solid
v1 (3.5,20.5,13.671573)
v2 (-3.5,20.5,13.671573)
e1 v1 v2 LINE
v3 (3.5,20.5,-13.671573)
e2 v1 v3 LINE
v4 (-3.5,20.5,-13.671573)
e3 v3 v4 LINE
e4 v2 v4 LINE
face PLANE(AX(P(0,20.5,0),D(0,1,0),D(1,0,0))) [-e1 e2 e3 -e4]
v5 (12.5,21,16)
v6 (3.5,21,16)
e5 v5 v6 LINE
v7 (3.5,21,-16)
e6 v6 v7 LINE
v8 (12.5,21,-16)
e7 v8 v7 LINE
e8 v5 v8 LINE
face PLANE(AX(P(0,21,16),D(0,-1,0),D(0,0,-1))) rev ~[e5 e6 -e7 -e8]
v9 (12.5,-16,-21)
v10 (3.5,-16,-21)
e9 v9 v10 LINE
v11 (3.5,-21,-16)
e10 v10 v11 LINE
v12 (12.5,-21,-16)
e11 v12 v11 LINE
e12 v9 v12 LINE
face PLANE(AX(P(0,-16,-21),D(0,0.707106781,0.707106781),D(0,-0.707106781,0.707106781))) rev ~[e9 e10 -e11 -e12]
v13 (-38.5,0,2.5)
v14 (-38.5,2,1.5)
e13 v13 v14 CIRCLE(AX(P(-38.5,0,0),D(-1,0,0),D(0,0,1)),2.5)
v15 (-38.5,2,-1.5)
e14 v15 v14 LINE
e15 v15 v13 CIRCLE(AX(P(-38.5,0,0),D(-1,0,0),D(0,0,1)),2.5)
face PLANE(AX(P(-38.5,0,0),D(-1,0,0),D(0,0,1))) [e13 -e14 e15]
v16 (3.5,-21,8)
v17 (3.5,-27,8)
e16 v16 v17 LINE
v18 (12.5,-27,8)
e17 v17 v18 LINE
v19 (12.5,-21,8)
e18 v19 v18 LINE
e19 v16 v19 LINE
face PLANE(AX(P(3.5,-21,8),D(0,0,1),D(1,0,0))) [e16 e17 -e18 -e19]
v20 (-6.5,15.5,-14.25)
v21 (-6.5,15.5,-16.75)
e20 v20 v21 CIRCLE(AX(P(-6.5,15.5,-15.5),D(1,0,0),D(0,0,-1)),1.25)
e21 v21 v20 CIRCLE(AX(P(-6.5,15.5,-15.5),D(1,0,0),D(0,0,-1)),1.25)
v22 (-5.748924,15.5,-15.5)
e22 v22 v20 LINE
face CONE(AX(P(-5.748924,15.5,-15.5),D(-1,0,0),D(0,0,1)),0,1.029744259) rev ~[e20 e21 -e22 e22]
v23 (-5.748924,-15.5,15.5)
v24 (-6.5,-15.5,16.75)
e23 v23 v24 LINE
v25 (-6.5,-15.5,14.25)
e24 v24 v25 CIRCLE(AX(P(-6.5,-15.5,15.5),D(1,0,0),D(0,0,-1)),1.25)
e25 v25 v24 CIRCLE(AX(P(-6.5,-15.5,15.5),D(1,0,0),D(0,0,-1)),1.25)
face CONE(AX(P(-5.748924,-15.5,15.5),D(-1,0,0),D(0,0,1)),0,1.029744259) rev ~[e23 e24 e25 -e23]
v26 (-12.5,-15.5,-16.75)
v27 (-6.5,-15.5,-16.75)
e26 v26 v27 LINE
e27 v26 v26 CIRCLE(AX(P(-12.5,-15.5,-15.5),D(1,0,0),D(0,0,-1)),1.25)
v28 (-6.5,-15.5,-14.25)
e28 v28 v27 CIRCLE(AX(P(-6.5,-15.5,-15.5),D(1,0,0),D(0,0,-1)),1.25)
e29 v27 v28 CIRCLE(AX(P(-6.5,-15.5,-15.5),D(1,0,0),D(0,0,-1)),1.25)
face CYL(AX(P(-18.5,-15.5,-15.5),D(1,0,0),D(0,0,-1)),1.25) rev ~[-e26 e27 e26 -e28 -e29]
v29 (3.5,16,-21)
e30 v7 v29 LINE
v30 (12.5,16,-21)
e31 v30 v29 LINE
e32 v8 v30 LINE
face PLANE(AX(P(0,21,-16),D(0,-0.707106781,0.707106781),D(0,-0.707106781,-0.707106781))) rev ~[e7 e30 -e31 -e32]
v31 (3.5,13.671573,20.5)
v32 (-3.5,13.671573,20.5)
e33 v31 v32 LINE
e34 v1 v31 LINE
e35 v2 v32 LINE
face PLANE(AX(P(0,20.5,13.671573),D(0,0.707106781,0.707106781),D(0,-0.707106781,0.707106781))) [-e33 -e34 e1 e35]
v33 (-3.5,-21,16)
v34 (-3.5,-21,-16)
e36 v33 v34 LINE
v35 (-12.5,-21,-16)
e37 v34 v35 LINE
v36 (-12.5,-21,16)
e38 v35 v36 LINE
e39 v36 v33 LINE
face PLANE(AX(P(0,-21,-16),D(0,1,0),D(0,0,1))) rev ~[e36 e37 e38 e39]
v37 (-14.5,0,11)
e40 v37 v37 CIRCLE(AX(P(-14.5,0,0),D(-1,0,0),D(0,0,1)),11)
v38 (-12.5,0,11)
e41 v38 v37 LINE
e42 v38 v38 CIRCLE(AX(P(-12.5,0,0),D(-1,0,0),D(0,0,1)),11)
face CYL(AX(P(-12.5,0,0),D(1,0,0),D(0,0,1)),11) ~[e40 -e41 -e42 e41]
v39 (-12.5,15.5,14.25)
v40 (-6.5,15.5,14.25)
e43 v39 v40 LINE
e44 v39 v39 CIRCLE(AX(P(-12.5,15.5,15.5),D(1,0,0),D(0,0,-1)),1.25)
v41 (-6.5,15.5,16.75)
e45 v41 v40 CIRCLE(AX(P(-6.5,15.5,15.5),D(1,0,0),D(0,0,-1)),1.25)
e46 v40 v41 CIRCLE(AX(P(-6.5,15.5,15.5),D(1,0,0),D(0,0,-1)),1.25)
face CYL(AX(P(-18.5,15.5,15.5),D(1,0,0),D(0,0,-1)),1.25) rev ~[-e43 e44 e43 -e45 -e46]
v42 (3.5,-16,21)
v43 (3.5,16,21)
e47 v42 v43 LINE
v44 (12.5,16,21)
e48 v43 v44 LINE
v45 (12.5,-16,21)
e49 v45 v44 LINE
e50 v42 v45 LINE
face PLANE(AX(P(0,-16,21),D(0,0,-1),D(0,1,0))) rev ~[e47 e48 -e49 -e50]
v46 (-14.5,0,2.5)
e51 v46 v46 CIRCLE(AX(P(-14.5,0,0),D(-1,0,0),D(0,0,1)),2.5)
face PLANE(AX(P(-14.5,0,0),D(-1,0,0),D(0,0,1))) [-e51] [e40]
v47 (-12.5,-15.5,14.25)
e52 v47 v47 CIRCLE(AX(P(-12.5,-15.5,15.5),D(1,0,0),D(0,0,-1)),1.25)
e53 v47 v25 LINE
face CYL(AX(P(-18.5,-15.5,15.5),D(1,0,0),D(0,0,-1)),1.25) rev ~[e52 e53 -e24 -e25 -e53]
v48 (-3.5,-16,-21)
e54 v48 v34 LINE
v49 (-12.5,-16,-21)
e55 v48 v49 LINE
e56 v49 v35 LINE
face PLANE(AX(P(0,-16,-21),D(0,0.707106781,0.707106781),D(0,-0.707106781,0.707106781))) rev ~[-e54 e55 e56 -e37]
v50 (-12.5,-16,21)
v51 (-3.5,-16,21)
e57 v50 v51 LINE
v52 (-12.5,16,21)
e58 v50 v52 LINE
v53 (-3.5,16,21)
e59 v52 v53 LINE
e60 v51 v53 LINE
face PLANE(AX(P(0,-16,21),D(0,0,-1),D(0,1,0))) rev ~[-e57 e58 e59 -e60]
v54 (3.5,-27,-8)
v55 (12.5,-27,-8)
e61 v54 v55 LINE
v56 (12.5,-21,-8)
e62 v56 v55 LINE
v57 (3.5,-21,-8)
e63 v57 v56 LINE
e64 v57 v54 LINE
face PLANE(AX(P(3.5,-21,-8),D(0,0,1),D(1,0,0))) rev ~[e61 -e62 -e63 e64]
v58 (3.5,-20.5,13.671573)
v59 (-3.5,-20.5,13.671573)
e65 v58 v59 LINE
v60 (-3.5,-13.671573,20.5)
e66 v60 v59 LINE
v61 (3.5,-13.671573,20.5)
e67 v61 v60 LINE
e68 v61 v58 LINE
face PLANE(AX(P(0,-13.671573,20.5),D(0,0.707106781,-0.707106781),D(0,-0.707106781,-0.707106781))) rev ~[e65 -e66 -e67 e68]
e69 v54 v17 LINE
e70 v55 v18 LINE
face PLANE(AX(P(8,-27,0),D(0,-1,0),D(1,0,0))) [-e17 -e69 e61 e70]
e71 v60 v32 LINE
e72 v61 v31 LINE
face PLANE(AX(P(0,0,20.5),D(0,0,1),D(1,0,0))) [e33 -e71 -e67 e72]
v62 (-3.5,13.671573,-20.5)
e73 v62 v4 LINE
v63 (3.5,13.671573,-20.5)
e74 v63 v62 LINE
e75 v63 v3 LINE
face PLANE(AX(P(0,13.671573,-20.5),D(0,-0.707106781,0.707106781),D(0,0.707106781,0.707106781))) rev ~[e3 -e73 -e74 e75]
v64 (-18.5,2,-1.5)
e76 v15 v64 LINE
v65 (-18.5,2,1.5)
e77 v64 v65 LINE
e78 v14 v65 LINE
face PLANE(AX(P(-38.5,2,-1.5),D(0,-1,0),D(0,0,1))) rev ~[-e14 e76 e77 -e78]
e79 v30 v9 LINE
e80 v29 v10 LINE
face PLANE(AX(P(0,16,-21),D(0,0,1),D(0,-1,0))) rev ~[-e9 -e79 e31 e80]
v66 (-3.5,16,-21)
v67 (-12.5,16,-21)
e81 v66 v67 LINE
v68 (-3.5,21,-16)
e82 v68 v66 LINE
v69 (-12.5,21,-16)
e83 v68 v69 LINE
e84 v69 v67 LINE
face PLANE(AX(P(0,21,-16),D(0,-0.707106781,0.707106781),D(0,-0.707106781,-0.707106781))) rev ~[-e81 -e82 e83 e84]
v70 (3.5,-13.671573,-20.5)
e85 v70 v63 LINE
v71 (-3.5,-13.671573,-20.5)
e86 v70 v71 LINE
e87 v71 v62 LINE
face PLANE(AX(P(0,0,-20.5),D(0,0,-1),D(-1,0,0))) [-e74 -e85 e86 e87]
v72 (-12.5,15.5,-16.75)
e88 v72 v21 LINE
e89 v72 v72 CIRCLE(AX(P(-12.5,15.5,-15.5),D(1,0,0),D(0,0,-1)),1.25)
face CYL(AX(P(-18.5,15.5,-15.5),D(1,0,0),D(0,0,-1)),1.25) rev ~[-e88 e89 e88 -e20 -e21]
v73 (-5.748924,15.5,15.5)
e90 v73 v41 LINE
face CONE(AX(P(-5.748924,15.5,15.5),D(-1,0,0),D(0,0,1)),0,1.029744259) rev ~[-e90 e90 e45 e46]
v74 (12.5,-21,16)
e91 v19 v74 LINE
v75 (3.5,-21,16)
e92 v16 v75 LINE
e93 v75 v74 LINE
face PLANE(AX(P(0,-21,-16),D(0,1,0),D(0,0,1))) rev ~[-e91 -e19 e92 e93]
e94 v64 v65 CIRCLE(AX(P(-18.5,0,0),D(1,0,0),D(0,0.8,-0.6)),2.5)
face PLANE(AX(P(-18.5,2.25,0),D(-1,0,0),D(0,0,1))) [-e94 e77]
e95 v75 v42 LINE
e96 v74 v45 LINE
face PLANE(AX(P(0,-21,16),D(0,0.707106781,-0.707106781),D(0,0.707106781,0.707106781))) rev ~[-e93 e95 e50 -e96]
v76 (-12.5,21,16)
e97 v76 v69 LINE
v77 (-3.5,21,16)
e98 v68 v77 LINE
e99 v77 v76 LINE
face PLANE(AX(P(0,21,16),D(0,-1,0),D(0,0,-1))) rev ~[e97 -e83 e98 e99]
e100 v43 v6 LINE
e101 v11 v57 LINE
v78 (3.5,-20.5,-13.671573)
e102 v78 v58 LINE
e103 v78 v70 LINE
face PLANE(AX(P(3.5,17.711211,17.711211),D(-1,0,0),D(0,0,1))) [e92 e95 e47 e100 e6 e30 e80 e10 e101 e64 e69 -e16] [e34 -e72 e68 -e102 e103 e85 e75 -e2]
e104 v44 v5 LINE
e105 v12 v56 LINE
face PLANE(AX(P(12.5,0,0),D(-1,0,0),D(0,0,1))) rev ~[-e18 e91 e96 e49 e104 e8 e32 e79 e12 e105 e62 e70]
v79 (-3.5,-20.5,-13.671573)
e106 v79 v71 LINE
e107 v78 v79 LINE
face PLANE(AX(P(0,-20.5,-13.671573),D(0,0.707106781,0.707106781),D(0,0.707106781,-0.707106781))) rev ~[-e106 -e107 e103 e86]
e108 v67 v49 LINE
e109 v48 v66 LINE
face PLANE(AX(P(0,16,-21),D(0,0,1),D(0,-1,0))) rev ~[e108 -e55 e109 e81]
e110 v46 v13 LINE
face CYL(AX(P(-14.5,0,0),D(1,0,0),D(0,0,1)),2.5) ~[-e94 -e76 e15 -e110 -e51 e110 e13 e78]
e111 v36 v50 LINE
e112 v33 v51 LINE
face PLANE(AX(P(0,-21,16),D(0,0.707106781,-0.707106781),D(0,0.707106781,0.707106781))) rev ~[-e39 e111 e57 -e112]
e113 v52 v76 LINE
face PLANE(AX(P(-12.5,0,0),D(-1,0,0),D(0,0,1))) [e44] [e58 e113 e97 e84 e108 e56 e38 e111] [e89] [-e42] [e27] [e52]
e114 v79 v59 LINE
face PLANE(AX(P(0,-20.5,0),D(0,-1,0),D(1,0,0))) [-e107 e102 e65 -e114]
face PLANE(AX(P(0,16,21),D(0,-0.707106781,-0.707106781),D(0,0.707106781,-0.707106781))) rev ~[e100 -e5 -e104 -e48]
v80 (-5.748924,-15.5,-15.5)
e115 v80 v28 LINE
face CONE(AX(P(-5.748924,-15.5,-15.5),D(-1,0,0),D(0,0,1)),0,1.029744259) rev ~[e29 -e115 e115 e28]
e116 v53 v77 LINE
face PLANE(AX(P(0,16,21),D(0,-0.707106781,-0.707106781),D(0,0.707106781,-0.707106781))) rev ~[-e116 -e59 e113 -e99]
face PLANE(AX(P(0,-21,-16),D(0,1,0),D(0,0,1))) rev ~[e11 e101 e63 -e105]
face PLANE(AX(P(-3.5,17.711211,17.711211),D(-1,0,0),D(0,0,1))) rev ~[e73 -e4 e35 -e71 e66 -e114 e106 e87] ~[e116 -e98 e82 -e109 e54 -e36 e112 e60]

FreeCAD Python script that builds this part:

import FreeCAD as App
import Part
import Sketcher
from FreeCAD import Vector

doc = App.newDocument("Part")
params = doc.addObject("Spreadsheet::Sheet", "Params")
for row, (alias, value) in enumerate([
    ("sketch1_width", "32 mm"),
    ("pad1_length", "25 mm"),
    ("sketch2_width", "0.5 mm"),
    ("pocket1_length", "7 mm"),
    ("sketch3_width", "7 mm"),
    ("pocket2_length", "0.5 mm"),
    ("sketch4_width", "7 mm"),
    ("pocket3_length", "0.5 mm"),
    ("sketch5_width", "7 mm"),
    ("pocket4_length", "0.5 mm"),
    ("sketch6_width", "7 mm"),
    ("pocket5_length", "0.5 mm"),
    ("sketch7_diameter", "22 mm"),
    ("pad2_length", "2 mm"),
    ("sketch8_diameter", "5 mm"),
    ("pad3_length", "24 mm"),
    ("sketch9_diameter", "2.5 mm"),
    ("hole_diameter", "2.5 mm"),
    ("hole_depth", "6 mm"),
    ("sketch10_height", "3 mm"),
    ("sketch10_width", "0.5 mm"),
    ("pocket6_length", "20 mm"),
    ("sketch11_width", "9 mm"),
    ("sketch11_height", "16 mm"),
    ("pad4_length", "6 mm"),
], start=1):
    params.set(f"A{row}", alias)
    params.set(f"B{row}", "=" + value)
    params.setAlias(f"B{row}", alias)

body = doc.addObject("PartDesign::Body", "Body")

# Sketch on YZ plane
sketch1 = body.newObject("Sketcher::SketchObject", "Sketch")
sketch1.AttachmentSupport = (doc.getObject("YZ_Plane"), [""])
sketch1.MapMode = "FlatFace"
sketch1.addGeometry(Part.LineSegment(Vector(21, 16, 0), Vector(16, 21, 0)), False)
sketch1.addGeometry(Part.LineSegment(Vector(16, 21, 0), Vector(-16, 21, 0)), False)
sketch1.addGeometry(Part.LineSegment(Vector(-16, 21, 0), Vector(-21, 16, 0)), False)
sketch1.addGeometry(Part.LineSegment(Vector(-21, 16, 0), Vector(-21, -16, 0)), False)
sketch1.addGeometry(Part.LineSegment(Vector(-21, -16, 0), Vector(-16, -21, 0)), False)
sketch1.addGeometry(Part.LineSegment(Vector(-16, -21, 0), Vector(16, -21, 0)), False)
sketch1.addGeometry(Part.LineSegment(Vector(16, -21, 0), Vector(21, -16, 0)), False)
sketch1.addGeometry(Part.LineSegment(Vector(21, -16, 0), Vector(21, 16, 0)), False)
sketch1.addConstraint(Sketcher.Constraint("Coincident", 0, 2, 1, 1))
sketch1.addConstraint(Sketcher.Constraint("Coincident", 1, 2, 2, 1))
sketch1.addConstraint(Sketcher.Constraint("Coincident", 2, 2, 3, 1))
sketch1.addConstraint(Sketcher.Constraint("Coincident", 3, 2, 4, 1))
sketch1.addConstraint(Sketcher.Constraint("Coincident", 4, 2, 5, 1))
sketch1.addConstraint(Sketcher.Constraint("Coincident", 5, 2, 6, 1))
sketch1.addConstraint(Sketcher.Constraint("Coincident", 6, 2, 7, 1))
sketch1.addConstraint(Sketcher.Constraint("Coincident", 7, 2, 0, 1))
sketch1.addConstraint(Sketcher.Constraint("Horizontal", 1))
sketch1.addConstraint(Sketcher.Constraint("Vertical", 3))
sketch1.addConstraint(Sketcher.Constraint("Horizontal", 5))
sketch1.addConstraint(Sketcher.Constraint("Vertical", 7))
sketch1.addConstraint(Sketcher.Constraint("Symmetric", 0, 2, 4, 2, -1, 1))
sketch1.addConstraint(Sketcher.Constraint("Symmetric", 2, 2, 6, 2, -1, 1))
sketch1.addConstraint(Sketcher.Constraint("Perpendicular", 0, 2))
sketch1.addConstraint(Sketcher.Constraint("Perpendicular", 2, 4))
sketch1.addConstraint(Sketcher.Constraint("Perpendicular", 4, 6))
sketch1.addConstraint(Sketcher.Constraint("Horizontal", 3, 2, 6, 2))
sketch1.addConstraint(Sketcher.Constraint("Vertical", 1, 2, 4, 2))
sketch1.addConstraint(Sketcher.Constraint("Equal", 5, 3))
sketch1.addConstraint(Sketcher.Constraint("DistanceX", 1, 2, 1, 1, 32.0))
sketch1.addConstraint(Sketcher.Constraint("DistanceY", -1, 1, 0, 2, 21.0))
sketch1.setExpression("Constraints[20]", "Params.sketch1_width")
pad1 = body.newObject("PartDesign::Pad", "Pad")
pad1.Profile = sketch1
pad1.setExpression("Length", "Params.pad1_length")
pad1.Midplane = True

# Sketch on YZ plane
sketch2 = body.newObject("Sketcher::SketchObject", "Sketch001")
sketch2.AttachmentSupport = (doc.getObject("YZ_Plane"), [""])
sketch2.MapMode = "FlatFace"
sketch2.addGeometry(Part.LineSegment(Vector(-13.7, 20.5, 0), Vector(-13.7, 21, 0)), False)
sketch2.addGeometry(Part.LineSegment(Vector(-13.7, 21, 0), Vector(-16, 21, 0)), False)
sketch2.addGeometry(Part.LineSegment(Vector(-16, 21, 0), Vector(-21, 16, 0)), False)
sketch2.addGeometry(Part.LineSegment(Vector(-21, 16, 0), Vector(-21, 13.7, 0)), False)
sketch2.addGeometry(Part.LineSegment(Vector(-21, 13.7, 0), Vector(-20.5, 13.7, 0)), False)
sketch2.addGeometry(Part.LineSegment(Vector(-20.5, 13.7, 0), Vector(-13.7, 20.5, 0)), False)
sketch2.addGeometry(Part.LineSegment(Vector(-20.5, -13.7, 0), Vector(-21, -13.7, 0)), False)
sketch2.addGeometry(Part.LineSegment(Vector(-21, -13.7, 0), Vector(-21, -16, 0)), False)
sketch2.addGeometry(Part.LineSegment(Vector(-21, -16, 0), Vector(-16, -21, 0)), False)
sketch2.addGeometry(Part.LineSegment(Vector(-16, -21, 0), Vector(-13.7, -21, 0)), False)
sketch2.addGeometry(Part.LineSegment(Vector(-13.7, -21, 0), Vector(-13.7, -20.5, 0)), False)
sketch2.addGeometry(Part.LineSegment(Vector(-13.7, -20.5, 0), Vector(-20.5, -13.7, 0)), False)
sketch2.addGeometry(Part.LineSegment(Vector(13.7, -20.5, 0), Vector(13.7, -21, 0)), False)
sketch2.addGeometry(Part.LineSegment(Vector(13.7, -21, 0), Vector(16, -21, 0)), False)
sketch2.addGeometry(Part.LineSegment(Vector(16, -21, 0), Vector(21, -16, 0)), False)
sketch2.addGeometry(Part.LineSegment(Vector(21, -16, 0), Vector(21, -13.7, 0)), False)
sketch2.addGeometry(Part.LineSegment(Vector(21, -13.7, 0), Vector(20.5, -13.7, 0)), False)
sketch2.addGeometry(Part.LineSegment(Vector(20.5, -13.7, 0), Vector(13.7, -20.5, 0)), False)
sketch2.addGeometry(Part.LineSegment(Vector(20.5, 13.7, 0), Vector(21, 13.7, 0)), False)
sketch2.addGeometry(Part.LineSegment(Vector(21, 13.7, 0), Vector(21, 16, 0)), False)
sketch2.addGeometry(Part.LineSegment(Vector(21, 16, 0), Vector(16, 21, 0)), False)
sketch2.addGeometry(Part.LineSegment(Vector(16, 21, 0), Vector(13.7, 21, 0)), False)
sketch2.addGeometry(Part.LineSegment(Vector(13.7, 21, 0), Vector(13.7, 20.5, 0)), False)
sketch2.addGeometry(Part.LineSegment(Vector(13.7, 20.5, 0), Vector(20.5, 13.7, 0)), False)
sketch2.addConstraint(Sketcher.Constraint("Coincident", 0, 2, 1, 1))
sketch2.addConstraint(Sketcher.Constraint("Coincident", 1, 2, 2, 1))
sketch2.addConstraint(Sketcher.Constraint("Coincident", 2, 2, 3, 1))
sketch2.addConstraint(Sketcher.Constraint("Coincident", 3, 2, 4, 1))
sketch2.addConstraint(Sketcher.Constraint("Coincident", 4, 2, 5, 1))
sketch2.addConstraint(Sketcher.Constraint("Coincident", 5, 2, 0, 1))
sketch2.addConstraint(Sketcher.Constraint("Coincident", 6, 2, 7, 1))
sketch2.addConstraint(Sketcher.Constraint("Coincident", 7, 2, 8, 1))
sketch2.addConstraint(Sketcher.Constraint("Coincident", 8, 2, 9, 1))
sketch2.addConstraint(Sketcher.Constraint("Coincident", 9, 2, 10, 1))
sketch2.addConstraint(Sketcher.Constraint("Coincident", 10, 2, 11, 1))
sketch2.addConstraint(Sketcher.Constraint("Coincident", 11, 2, 6, 1))
sketch2.addConstraint(Sketcher.Constraint("Coincident", 12, 2, 13, 1))
sketch2.addConstraint(Sketcher.Constraint("Coincident", 13, 2, 14, 1))
sketch2.addConstraint(Sketcher.Constraint("Coincident", 14, 2, 15, 1))
sketch2.addConstraint(Sketcher.Constraint("Coincident", 15, 2, 16, 1))
sketch2.addConstraint(Sketcher.Constraint("Coincident", 16, 2, 17, 1))
sketch2.addConstraint(Sketcher.Constraint("Coincident", 17, 2, 12, 1))
sketch2.addConstraint(Sketcher.Constraint("Coincident", 18, 2, 19, 1))
sketch2.addConstraint(Sketcher.Constraint("Coincident", 19, 2, 20, 1))
sketch2.addConstraint(Sketcher.Constraint("Coincident", 20, 2, 21, 1))
sketch2.addConstraint(Sketcher.Constraint("Coincident", 21, 2, 22, 1))
sketch2.addConstraint(Sketcher.Constraint("Coincident", 22, 2, 23, 1))
sketch2.addConstraint(Sketcher.Constraint("Coincident", 23, 2, 18, 1))
sketch2.addConstraint(Sketcher.Constraint("Vertical", 0))
sketch2.addConstraint(Sketcher.Constraint("Horizontal", 1))
sketch2.addConstraint(Sketcher.Constraint("Vertical", 3))
sketch2.addConstraint(Sketcher.Constraint("Horizontal", 4))
sketch2.addConstraint(Sketcher.Constraint("Horizontal", 6))
sketch2.addConstraint(Sketcher.Constraint("Vertical", 7))
sketch2.addConstraint(Sketcher.Constraint("Horizontal", 9))
sketch2.addConstraint(Sketcher.Constraint("Vertical", 10))
sketch2.addConstraint(Sketcher.Constraint("Vertical", 12))
sketch2.addConstraint(Sketcher.Constraint("Horizontal", 13))
sketch2.addConstraint(Sketcher.Constraint("Vertical", 15))
sketch2.addConstraint(Sketcher.Constraint("Horizontal", 16))
sketch2.addConstraint(Sketcher.Constraint("Horizontal", 18))
sketch2.addConstraint(Sketcher.Constraint("Vertical", 19))
sketch2.addConstraint(Sketcher.Constraint("Horizontal", 21))
sketch2.addConstraint(Sketcher.Constraint("Vertical", 22))
sketch2.addConstraint(Sketcher.Constraint("Symmetric", 0, 2, 12, 2, -1, 1))
sketch2.addConstraint(Sketcher.Constraint("Symmetric", 2, 2, 14, 2, -1, 1))
sketch2.addConstraint(Sketcher.Constraint("Symmetric", 4, 2, 16, 2, -1, 1))
sketch2.addConstraint(Sketcher.Constraint("Symmetric", 6, 2, 18, 2, -1, 1))
sketch2.addConstraint(Sketcher.Constraint("Symmetric", 8, 2, 20, 2, -1, 1))
sketch2.addConstraint(Sketcher.Constraint("Symmetric", 10, 2, 22, 2, -1, 1))
sketch2.addConstraint(Sketcher.Constraint("Symmetric", 9, 2, 12, 2, -2))
sketch2.addConstraint(Sketcher.Constraint("Symmetric", 7, 2, 14, 2, -2))
sketch2.addConstraint(Sketcher.Constraint("Symmetric", 11, 2, 16, 2, -2))
sketch2.addConstraint(Sketcher.Constraint("Parallel", 2, 5))
sketch2.addConstraint(Sketcher.Constraint("Perpendicular", 5, 8))
sketch2.addConstraint(Sketcher.Constraint("Parallel", 8, 11))
sketch2.addConstraint(Sketcher.Constraint("Perpendicular", 11, 14))
sketch2.addConstraint(Sketcher.Constraint("Parallel", 14, 17))
sketch2.addConstraint(Sketcher.Constraint("Perpendicular", 17, 20))
sketch2.addConstraint(Sketcher.Constraint("Parallel", 20, 23))
sketch2.addConstraint(Sketcher.Constraint("Horizontal", 10, 2, 17, 2))
sketch2.addConstraint(Sketcher.Constraint("Equal", 18, 0))
sketch2.addConstraint(Sketcher.Constraint("DistanceX", 4, 1, 4, 2, 0.5))
sketch2.addConstraint(Sketcher.Constraint("DistanceY", -1, 1, 0, 2, 21.0))
sketch2.addConstraint(Sketcher.Constraint("DistanceX", 1, 2, -1, 1, 16.0))
sketch2.addConstraint(Sketcher.Constraint("DistanceX", 2, 2, -1, 1, 21.0))
sketch2.addConstraint(Sketcher.Constraint("DistanceX", 1, 2, 1, 1, 2.328427))
sketch2.setExpression("Constraints[58]", "Params.sketch2_width")
pocket1 = body.newObject("PartDesign::Pocket", "Pocket")
pocket1.Profile = sketch2
pocket1.setExpression("Length", "Params.pocket1_length")
pocket1.Midplane = True

# Sketch on XY plane
sketch3 = body.newObject("Sketcher::SketchObject", "Sketch002")
sketch3.AttachmentSupport = (doc.getObject("XY_Plane"), [""])
sketch3.MapMode = "FlatFace"
sketch3.AttachmentOffset = App.Placement(Vector(0, 0, 21), App.Rotation())
sketch3.addGeometry(Part.LineSegment(Vector(-4, 14, 0), Vector(-4, -14, 0)), False)
sketch3.addGeometry(Part.LineSegment(Vector(-4, -14, 0), Vector(4, -14, 0)), False)
sketch3.addGeometry(Part.LineSegment(Vector(4, -14, 0), Vector(4, 14, 0)), False)
sketch3.addGeometry(Part.LineSegment(Vector(4, 14, 0), Vector(-4, 14, 0)), False)
sketch3.addConstraint(Sketcher.Constraint("Coincident", 0, 2, 1, 1))
sketch3.addConstraint(Sketcher.Constraint("Coincident", 1, 2, 2, 1))
sketch3.addConstraint(Sketcher.Constraint("Coincident", 2, 2, 3, 1))
sketch3.addConstraint(Sketcher.Constraint("Coincident", 3, 2, 0, 1))
sketch3.addConstraint(Sketcher.Constraint("Vertical", 0))
sketch3.addConstraint(Sketcher.Constraint("Horizontal", 1))
sketch3.addConstraint(Sketcher.Constraint("Vertical", 2))
sketch3.addConstraint(Sketcher.Constraint("Horizontal", 3))
sketch3.addConstraint(Sketcher.Constraint("Symmetric", 0, 2, 2, 2, -1, 1))
sketch3.addConstraint(Sketcher.Constraint("DistanceX", 1, 1, 1, 2, 7.0))
sketch3.addConstraint(Sketcher.Constraint("DistanceY", 0, 2, 0, 1, 27.343146))
sketch3.setExpression("Constraints[9]", "Params.sketch3_width")
pocket2 = body.newObject("PartDesign::Pocket", "Pocket001")
pocket2.Profile = sketch3
pocket2.setExpression("Length", "Params.pocket2_length")

# Sketch on XZ plane
sketch4 = body.newObject("Sketcher::SketchObject", "Sketch003")
sketch4.AttachmentSupport = (doc.getObject("XZ_Plane"), [""])
sketch4.MapMode = "FlatFace"
sketch4.AttachmentOffset = App.Placement(Vector(0, 0, -21), App.Rotation())
sketch4.addGeometry(Part.LineSegment(Vector(-4, -14, 0), Vector(-4, 14, 0)), False)
sketch4.addGeometry(Part.LineSegment(Vector(-4, 14, 0), Vector(4, 14, 0)), False)
sketch4.addGeometry(Part.LineSegment(Vector(4, 14, 0), Vector(4, -14, 0)), False)
sketch4.addGeometry(Part.LineSegment(Vector(4, -14, 0), Vector(-4, -14, 0)), False)
sketch4.addConstraint(Sketcher.Constraint("Coincident", 0, 2, 1, 1))
sketch4.addConstraint(Sketcher.Constraint("Coincident", 1, 2, 2, 1))
sketch4.addConstraint(Sketcher.Constraint("Coincident", 2, 2, 3, 1))
sketch4.addConstraint(Sketcher.Constraint("Coincident", 3, 2, 0, 1))
sketch4.addConstraint(Sketcher.Constraint("Vertical", 0))
sketch4.addConstraint(Sketcher.Constraint("Horizontal", 1))
sketch4.addConstraint(Sketcher.Constraint("Vertical", 2))
sketch4.addConstraint(Sketcher.Constraint("Horizontal", 3))
sketch4.addConstraint(Sketcher.Constraint("Symmetric", 0, 2, 2, 2, -1, 1))
sketch4.addConstraint(Sketcher.Constraint("DistanceX", 1, 1, 1, 2, 7.0))
sketch4.addConstraint(Sketcher.Constraint("DistanceY", 0, 1, 0, 2, 27.343146))
sketch4.setExpression("Constraints[9]", "Params.sketch4_width")
pocket3 = body.newObject("PartDesign::Pocket", "Pocket002")
pocket3.Profile = sketch4
pocket3.setExpression("Length", "Params.pocket3_length")
pocket3.Reversed = True

# Sketch on XY plane
sketch5 = body.newObject("Sketcher::SketchObject", "Sketch004")
sketch5.AttachmentSupport = (doc.getObject("XY_Plane"), [""])
sketch5.MapMode = "FlatFace"
sketch5.AttachmentOffset = App.Placement(Vector(0, 0, -21), App.Rotation())
sketch5.addGeometry(Part.LineSegment(Vector(4, 14, 0), Vector(4, -14, 0)), False)
sketch5.addGeometry(Part.LineSegment(Vector(4, -14, 0), Vector(-4, -14, 0)), False)
sketch5.addGeometry(Part.LineSegment(Vector(-4, -14, 0), Vector(-4, 14, 0)), False)
sketch5.addGeometry(Part.LineSegment(Vector(-4, 14, 0), Vector(4, 14, 0)), False)
sketch5.addConstraint(Sketcher.Constraint("Coincident", 0, 2, 1, 1))
sketch5.addConstraint(Sketcher.Constraint("Coincident", 1, 2, 2, 1))
sketch5.addConstraint(Sketcher.Constraint("Coincident", 2, 2, 3, 1))
sketch5.addConstraint(Sketcher.Constraint("Coincident", 3, 2, 0, 1))
sketch5.addConstraint(Sketcher.Constraint("Vertical", 0))
sketch5.addConstraint(Sketcher.Constraint("Horizontal", 1))
sketch5.addConstraint(Sketcher.Constraint("Vertical", 2))
sketch5.addConstraint(Sketcher.Constraint("Horizontal", 3))
sketch5.addConstraint(Sketcher.Constraint("Symmetric", 0, 2, 2, 2, -1, 1))
sketch5.addConstraint(Sketcher.Constraint("DistanceX", 1, 2, 1, 1, 7.0))
sketch5.addConstraint(Sketcher.Constraint("DistanceY", 0, 2, 0, 1, 27.343146))
sketch5.setExpression("Constraints[9]", "Params.sketch5_width")
pocket4 = body.newObject("PartDesign::Pocket", "Pocket003")
pocket4.Profile = sketch5
pocket4.setExpression("Length", "Params.pocket4_length")
pocket4.Reversed = True

# Sketch on XZ plane
sketch6 = body.newObject("Sketcher::SketchObject", "Sketch005")
sketch6.AttachmentSupport = (doc.getObject("XZ_Plane"), [""])
sketch6.MapMode = "FlatFace"
sketch6.AttachmentOffset = App.Placement(Vector(0, 0, 21), App.Rotation())
sketch6.addGeometry(Part.LineSegment(Vector(-4, 14, 0), Vector(-4, -14, 0)), False)
sketch6.addGeometry(Part.LineSegment(Vector(-4, -14, 0), Vector(4, -14, 0)), False)
sketch6.addGeometry(Part.LineSegment(Vector(4, -14, 0), Vector(4, 14, 0)), False)
sketch6.addGeometry(Part.LineSegment(Vector(4, 14, 0), Vector(-4, 14, 0)), False)
sketch6.addConstraint(Sketcher.Constraint("Coincident", 0, 2, 1, 1))
sketch6.addConstraint(Sketcher.Constraint("Coincident", 1, 2, 2, 1))
sketch6.addConstraint(Sketcher.Constraint("Coincident", 2, 2, 3, 1))
sketch6.addConstraint(Sketcher.Constraint("Coincident", 3, 2, 0, 1))
sketch6.addConstraint(Sketcher.Constraint("Vertical", 0))
sketch6.addConstraint(Sketcher.Constraint("Horizontal", 1))
sketch6.addConstraint(Sketcher.Constraint("Vertical", 2))
sketch6.addConstraint(Sketcher.Constraint("Horizontal", 3))
sketch6.addConstraint(Sketcher.Constraint("Symmetric", 0, 2, 2, 2, -1, 1))
sketch6.addConstraint(Sketcher.Constraint("DistanceX", 1, 1, 1, 2, 7.0))
sketch6.addConstraint(Sketcher.Constraint("DistanceY", 0, 2, 0, 1, 27.343146))
sketch6.setExpression("Constraints[9]", "Params.sketch6_width")
pocket5 = body.newObject("PartDesign::Pocket", "Pocket004")
pocket5.Profile = sketch6
pocket5.setExpression("Length", "Params.pocket5_length")

# Sketch on YZ plane
sketch7 = body.newObject("Sketcher::SketchObject", "Sketch006")
sketch7.AttachmentSupport = (doc.getObject("YZ_Plane"), [""])
sketch7.MapMode = "FlatFace"
sketch7.AttachmentOffset = App.Placement(Vector(0, 0, -12.5), App.Rotation())
sketch7.addGeometry(Part.Circle(Vector(0, 0, 0), Vector(0, 0, 1), 11), False)
sketch7.addConstraint(Sketcher.Constraint("Coincident", 0, 3, -1, 1))
sketch7.addConstraint(Sketcher.Constraint("Diameter", 0, 22.0))
sketch7.setExpression("Constraints[1]", "Params.sketch7_diameter")
pad2 = body.newObject("PartDesign::Pad", "Pad001")
pad2.Profile = sketch7
pad2.setExpression("Length", "Params.pad2_length")
pad2.Reversed = True

# Sketch on YZ plane
sketch8 = body.newObject("Sketcher::SketchObject", "Sketch007")
sketch8.AttachmentSupport = (doc.getObject("YZ_Plane"), [""])
sketch8.MapMode = "FlatFace"
sketch8.AttachmentOffset = App.Placement(Vector(0, 0, -14.5), App.Rotation())
sketch8.addGeometry(Part.Circle(Vector(0, 0, 0), Vector(0, 0, 1), 2.5), False)
sketch8.addConstraint(Sketcher.Constraint("Coincident", 0, 3, -1, 1))
sketch8.addConstraint(Sketcher.Constraint("Diameter", 0, 5.0))
sketch8.setExpression("Constraints[1]", "Params.sketch8_diameter")
pad3 = body.newObject("PartDesign::Pad", "Pad002")
pad3.Profile = sketch8
pad3.setExpression("Length", "Params.pad3_length")
pad3.Reversed = True

# Sketch on YZ plane
sketch9 = body.newObject("Sketcher::SketchObject", "Sketch008")
sketch9.AttachmentSupport = (doc.getObject("YZ_Plane"), [""])
sketch9.MapMode = "FlatFace"
sketch9.AttachmentOffset = App.Placement(Vector(0, 0, -12.5), App.Rotation())
sketch9.addGeometry(Part.Circle(Vector(15.5, -15.5, 0), Vector(0, 0, 1), 1.2), False)
sketch9.addGeometry(Part.Circle(Vector(15.5, 15.5, 0), Vector(0, 0, 1), 1.2), False)
sketch9.addGeometry(Part.Circle(Vector(-15.5, -15.5, 0), Vector(0, 0, 1), 1.2), False)
sketch9.addGeometry(Part.Circle(Vector(-15.5, 15.5, 0), Vector(0, 0, 1), 1.2), False)
sketch9.addConstraint(Sketcher.Constraint("Equal", 0, 1))
sketch9.addConstraint(Sketcher.Constraint("Equal", 1, 2))
sketch9.addConstraint(Sketcher.Constraint("Equal", 2, 3))
sketch9.addConstraint(Sketcher.Constraint("Symmetric", 1, 3, 2, 3, -1, 1))
sketch9.addConstraint(Sketcher.Constraint("Symmetric", 0, 3, 3, 3, -1, 1))
sketch9.addConstraint(Sketcher.Constraint("Symmetric", 0, 3, 2, 3, -2))
sketch9.addConstraint(Sketcher.Constraint("Diameter", 0, 2.5))
sketch9.addConstraint(Sketcher.Constraint("DistanceY", 0, 3, 1, 3, 31.0))
sketch9.addConstraint(Sketcher.Constraint("DistanceX", 2, 3, 0, 3, 31.0))
sketch9.setExpression("Constraints[6]", "Params.sketch9_diameter")
doc.recompute()
hole = body.newObject("PartDesign::Hole", "Hole")
hole.Profile = sketch9
hole.ThreadType = "None"
hole.setExpression("Diameter", "Params.hole_diameter")
hole.DepthType = "Dimension"
hole.setExpression("Depth", "Params.hole_depth")
hole.DrillPoint = "Angled"
hole.DrillPointAngle = 118
hole.Reversed = True

# Sketch on YZ plane
sketch10 = body.newObject("Sketcher::SketchObject", "Sketch009")
sketch10.AttachmentSupport = (doc.getObject("YZ_Plane"), [""])
sketch10.MapMode = "FlatFace"
sketch10.AttachmentOffset = App.Placement(Vector(0, 0, -38.5), App.Rotation())
sketch10.addGeometry(Part.LineSegment(Vector(2.5, -1.5, 0), Vector(2, -1.5, 0)), False)
sketch10.addGeometry(Part.LineSegment(Vector(2, -1.5, 0), Vector(2, 1.5, 0)), False)
sketch10.addGeometry(Part.LineSegment(Vector(2, 1.5, 0), Vector(2.5, 1.5, 0)), False)
sketch10.addGeometry(Part.LineSegment(Vector(2.5, 1.5, 0), Vector(2.5, -1.5, 0)), False)
sketch10.addConstraint(Sketcher.Constraint("Coincident", 0, 2, 1, 1))
sketch10.addConstraint(Sketcher.Constraint("Coincident", 1, 2, 2, 1))
sketch10.addConstraint(Sketcher.Constraint("Coincident", 2, 2, 3, 1))
sketch10.addConstraint(Sketcher.Constraint("Coincident", 3, 2, 0, 1))
sketch10.addConstraint(Sketcher.Constraint("Horizontal", 0))
sketch10.addConstraint(Sketcher.Constraint("Vertical", 1))
sketch10.addConstraint(Sketcher.Constraint("Horizontal", 2))
sketch10.addConstraint(Sketcher.Constraint("Vertical", 3))
sketch10.addConstraint(Sketcher.Constraint("DistanceY", 1, 1, 1, 2, 3.0))
sketch10.addConstraint(Sketcher.Constraint("DistanceX", 0, 2, 0, 1, 0.5))
sketch10.addConstraint(Sketcher.Constraint("DistanceX", -1, 1, 0, 2, 2.0))
sketch10.addConstraint(Sketcher.Constraint("DistanceY", 0, 2, -1, 1, 1.5))
sketch10.setExpression("Constraints[8]", "Params.sketch10_height")
sketch10.setExpression("Constraints[9]", "Params.sketch10_width")
pocket6 = body.newObject("PartDesign::Pocket", "Pocket005")
pocket6.Profile = sketch10
pocket6.setExpression("Length", "Params.pocket6_length")
pocket6.Reversed = True

# Sketch on XZ plane
sketch11 = body.newObject("Sketcher::SketchObject", "Sketch010")
sketch11.AttachmentSupport = (doc.getObject("XZ_Plane"), [""])
sketch11.MapMode = "FlatFace"
sketch11.AttachmentOffset = App.Placement(Vector(0, 0, 21), App.Rotation())
sketch11.addGeometry(Part.LineSegment(Vector(4, 8, 0), Vector(4, -8, 0)), False)
sketch11.addGeometry(Part.LineSegment(Vector(4, -8, 0), Vector(12, -8, 0)), False)
sketch11.addGeometry(Part.LineSegment(Vector(12, -8, 0), Vector(12, 8, 0)), False)
sketch11.addGeometry(Part.LineSegment(Vector(12, 8, 0), Vector(4, 8, 0)), False)
sketch11.addConstraint(Sketcher.Constraint("Coincident", 0, 2, 1, 1))
sketch11.addConstraint(Sketcher.Constraint("Coincident", 1, 2, 2, 1))
sketch11.addConstraint(Sketcher.Constraint("Coincident", 2, 2, 3, 1))
sketch11.addConstraint(Sketcher.Constraint("Coincident", 3, 2, 0, 1))
sketch11.addConstraint(Sketcher.Constraint("Vertical", 0))
sketch11.addConstraint(Sketcher.Constraint("Horizontal", 1))
sketch11.addConstraint(Sketcher.Constraint("Vertical", 2))
sketch11.addConstraint(Sketcher.Constraint("Horizontal", 3))
sketch11.addConstraint(Sketcher.Constraint("DistanceX", 1, 1, 1, 2, 9.0))
sketch11.addConstraint(Sketcher.Constraint("DistanceY", 0, 2, 0, 1, 16.0))
sketch11.addConstraint(Sketcher.Constraint("DistanceY", 0, 2, -1, 1, 8.0))
sketch11.addConstraint(Sketcher.Constraint("DistanceX", -1, 1, 0, 2, 3.5))
sketch11.setExpression("Constraints[8]", "Params.sketch11_width")
sketch11.setExpression("Constraints[9]", "Params.sketch11_height")
pad4 = body.newObject("PartDesign::Pad", "Pad003")
pad4.Profile = sketch11
pad4.setExpression("Length", "Params.pad4_length")

doc.recompute()
